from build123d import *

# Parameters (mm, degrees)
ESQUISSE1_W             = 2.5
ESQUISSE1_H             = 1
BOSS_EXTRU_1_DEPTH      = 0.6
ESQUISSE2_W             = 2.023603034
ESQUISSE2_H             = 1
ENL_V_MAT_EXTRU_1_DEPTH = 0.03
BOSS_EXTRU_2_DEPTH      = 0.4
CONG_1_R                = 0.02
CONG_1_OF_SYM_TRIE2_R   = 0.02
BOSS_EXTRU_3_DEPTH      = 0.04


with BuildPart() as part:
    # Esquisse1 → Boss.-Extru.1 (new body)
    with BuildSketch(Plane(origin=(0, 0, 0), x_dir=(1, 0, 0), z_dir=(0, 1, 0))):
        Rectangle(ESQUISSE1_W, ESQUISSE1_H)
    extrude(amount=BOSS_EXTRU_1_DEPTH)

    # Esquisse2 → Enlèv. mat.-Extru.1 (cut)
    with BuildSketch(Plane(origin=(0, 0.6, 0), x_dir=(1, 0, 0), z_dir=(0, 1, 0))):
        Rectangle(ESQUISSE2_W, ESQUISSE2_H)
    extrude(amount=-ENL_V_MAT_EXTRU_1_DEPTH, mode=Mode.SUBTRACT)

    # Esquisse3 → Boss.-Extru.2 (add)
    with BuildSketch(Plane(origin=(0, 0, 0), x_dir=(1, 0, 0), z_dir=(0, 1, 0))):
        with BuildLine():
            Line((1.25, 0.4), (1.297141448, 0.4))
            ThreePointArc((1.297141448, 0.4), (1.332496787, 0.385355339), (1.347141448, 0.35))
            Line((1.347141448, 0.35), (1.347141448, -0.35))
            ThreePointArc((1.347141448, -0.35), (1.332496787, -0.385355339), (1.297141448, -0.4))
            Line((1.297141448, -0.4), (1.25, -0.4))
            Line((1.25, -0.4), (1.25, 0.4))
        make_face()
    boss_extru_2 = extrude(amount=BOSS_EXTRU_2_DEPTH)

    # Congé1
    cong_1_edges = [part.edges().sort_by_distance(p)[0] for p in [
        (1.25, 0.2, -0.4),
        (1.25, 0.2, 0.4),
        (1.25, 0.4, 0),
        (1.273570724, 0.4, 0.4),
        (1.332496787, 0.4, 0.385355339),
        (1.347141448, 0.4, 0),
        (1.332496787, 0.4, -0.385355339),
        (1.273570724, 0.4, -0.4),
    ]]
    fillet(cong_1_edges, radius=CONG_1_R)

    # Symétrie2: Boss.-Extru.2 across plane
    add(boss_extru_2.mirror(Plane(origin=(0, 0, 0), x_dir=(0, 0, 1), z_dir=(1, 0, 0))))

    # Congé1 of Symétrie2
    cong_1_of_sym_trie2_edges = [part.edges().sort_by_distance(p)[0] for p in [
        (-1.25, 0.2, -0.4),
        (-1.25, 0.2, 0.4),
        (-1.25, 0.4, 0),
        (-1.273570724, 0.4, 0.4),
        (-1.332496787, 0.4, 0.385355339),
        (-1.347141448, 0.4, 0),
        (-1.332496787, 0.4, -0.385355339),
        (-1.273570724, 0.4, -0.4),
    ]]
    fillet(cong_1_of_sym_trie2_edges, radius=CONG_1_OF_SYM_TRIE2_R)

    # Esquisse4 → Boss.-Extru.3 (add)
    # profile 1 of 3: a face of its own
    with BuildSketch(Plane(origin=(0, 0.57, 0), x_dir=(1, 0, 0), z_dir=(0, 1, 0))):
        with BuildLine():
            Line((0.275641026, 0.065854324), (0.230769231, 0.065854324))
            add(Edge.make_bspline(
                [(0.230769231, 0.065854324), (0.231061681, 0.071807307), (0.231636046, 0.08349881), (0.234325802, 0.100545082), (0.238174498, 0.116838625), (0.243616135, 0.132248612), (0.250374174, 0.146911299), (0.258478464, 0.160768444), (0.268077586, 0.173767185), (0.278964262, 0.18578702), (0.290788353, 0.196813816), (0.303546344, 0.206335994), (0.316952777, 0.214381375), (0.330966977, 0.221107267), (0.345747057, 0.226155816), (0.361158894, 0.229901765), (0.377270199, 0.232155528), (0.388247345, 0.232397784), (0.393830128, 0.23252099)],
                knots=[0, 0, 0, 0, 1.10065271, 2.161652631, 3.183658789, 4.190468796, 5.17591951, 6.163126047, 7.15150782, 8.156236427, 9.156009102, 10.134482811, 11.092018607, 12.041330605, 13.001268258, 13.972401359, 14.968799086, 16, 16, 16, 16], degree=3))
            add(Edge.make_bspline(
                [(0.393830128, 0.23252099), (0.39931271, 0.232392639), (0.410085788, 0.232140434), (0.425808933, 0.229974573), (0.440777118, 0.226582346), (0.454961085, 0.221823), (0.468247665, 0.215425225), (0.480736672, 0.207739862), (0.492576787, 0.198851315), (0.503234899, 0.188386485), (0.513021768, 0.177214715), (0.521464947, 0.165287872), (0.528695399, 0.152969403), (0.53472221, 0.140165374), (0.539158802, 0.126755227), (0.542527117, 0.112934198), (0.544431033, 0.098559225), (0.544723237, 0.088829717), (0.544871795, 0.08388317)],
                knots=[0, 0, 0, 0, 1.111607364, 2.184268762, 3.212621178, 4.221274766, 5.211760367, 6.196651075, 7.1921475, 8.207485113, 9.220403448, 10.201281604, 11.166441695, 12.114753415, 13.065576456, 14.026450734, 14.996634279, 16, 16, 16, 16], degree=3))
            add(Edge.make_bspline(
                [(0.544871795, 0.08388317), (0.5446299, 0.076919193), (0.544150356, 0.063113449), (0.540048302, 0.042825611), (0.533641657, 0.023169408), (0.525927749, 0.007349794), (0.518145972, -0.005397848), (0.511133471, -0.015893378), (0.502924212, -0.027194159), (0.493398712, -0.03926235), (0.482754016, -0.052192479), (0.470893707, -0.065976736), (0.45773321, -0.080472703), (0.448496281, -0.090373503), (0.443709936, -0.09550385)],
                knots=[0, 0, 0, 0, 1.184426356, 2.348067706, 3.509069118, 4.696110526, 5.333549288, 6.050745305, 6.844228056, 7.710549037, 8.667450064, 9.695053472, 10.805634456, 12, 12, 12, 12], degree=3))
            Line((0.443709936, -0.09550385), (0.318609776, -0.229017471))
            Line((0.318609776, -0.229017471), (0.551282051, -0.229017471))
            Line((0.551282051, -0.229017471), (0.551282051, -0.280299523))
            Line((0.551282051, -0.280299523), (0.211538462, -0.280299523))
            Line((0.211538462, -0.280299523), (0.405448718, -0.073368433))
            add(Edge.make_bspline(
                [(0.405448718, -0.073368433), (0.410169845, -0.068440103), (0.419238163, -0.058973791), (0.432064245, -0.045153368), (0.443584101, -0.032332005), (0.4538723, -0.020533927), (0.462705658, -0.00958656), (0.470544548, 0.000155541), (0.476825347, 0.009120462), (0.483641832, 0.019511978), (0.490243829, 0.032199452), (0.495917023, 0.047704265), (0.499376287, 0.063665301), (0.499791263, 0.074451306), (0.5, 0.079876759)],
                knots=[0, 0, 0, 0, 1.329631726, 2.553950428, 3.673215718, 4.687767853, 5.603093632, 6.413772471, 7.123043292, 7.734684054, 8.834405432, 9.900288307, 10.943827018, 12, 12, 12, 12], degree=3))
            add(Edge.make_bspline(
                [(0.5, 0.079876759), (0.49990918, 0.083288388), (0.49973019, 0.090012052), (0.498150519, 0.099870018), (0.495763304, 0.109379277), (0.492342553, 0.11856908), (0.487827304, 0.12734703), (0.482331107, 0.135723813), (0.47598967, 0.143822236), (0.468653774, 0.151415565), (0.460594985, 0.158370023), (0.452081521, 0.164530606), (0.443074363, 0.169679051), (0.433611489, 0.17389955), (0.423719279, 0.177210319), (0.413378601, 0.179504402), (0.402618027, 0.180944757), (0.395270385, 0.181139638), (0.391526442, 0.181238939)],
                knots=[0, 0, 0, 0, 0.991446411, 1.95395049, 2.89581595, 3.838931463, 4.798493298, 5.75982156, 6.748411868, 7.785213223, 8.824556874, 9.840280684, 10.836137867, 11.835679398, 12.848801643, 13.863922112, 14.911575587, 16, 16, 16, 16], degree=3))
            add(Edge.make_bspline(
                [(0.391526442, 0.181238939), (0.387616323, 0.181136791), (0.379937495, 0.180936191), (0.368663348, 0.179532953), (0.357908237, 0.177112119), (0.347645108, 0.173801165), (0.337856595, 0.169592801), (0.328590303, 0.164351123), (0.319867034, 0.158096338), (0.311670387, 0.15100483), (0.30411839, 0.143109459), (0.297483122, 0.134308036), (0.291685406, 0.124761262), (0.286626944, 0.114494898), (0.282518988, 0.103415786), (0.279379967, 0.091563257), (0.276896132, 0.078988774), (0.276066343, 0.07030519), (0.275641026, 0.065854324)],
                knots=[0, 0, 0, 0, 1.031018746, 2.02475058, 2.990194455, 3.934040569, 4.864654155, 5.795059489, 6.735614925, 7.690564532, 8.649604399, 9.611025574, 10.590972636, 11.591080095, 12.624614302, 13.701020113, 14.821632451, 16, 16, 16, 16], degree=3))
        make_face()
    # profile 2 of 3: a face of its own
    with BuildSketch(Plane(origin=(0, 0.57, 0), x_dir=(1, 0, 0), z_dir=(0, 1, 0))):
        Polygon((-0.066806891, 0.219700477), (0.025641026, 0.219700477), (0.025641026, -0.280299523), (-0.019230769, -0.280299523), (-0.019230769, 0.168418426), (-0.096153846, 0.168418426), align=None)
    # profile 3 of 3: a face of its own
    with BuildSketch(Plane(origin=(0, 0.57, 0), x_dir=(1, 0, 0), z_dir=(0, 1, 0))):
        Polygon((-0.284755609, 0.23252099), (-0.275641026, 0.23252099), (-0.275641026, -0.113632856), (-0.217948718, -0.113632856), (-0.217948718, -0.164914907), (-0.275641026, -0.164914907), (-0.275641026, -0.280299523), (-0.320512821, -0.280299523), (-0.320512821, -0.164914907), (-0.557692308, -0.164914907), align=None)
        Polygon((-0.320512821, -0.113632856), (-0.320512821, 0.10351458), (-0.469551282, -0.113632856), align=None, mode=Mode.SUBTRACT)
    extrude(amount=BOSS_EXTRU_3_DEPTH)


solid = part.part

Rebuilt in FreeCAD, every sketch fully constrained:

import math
import FreeCAD as App
import Part
import Sketcher
Q = App.Units.Quantity


def edges_at(feature, points):
    """Names of the edges that pass closest to the given points."""
    edges = feature.Shape.Edges
    near = lambda p: min(range(len(edges)), key=lambda i: edges[i].distToShape(Part.Vertex(*p))[0])
    return sorted({f"Edge{near(p) + 1}" for p in points})

doc = App.newDocument("Part")
body = doc.addObject("PartDesign::Body", "Body")

sketch1 = body.newObject("Sketcher::SketchObject", "Sketch")
sketch1.AttachmentSupport = (doc.getObject("XZ_Plane"), [""])
sketch1.MapMode = "FlatFace"
sketch1.addGeometry(Part.LineSegment(App.Vector(-1.2, -0.5, 0), App.Vector(-1.2, 0.5, 0)), False)
sketch1.addGeometry(Part.LineSegment(App.Vector(-1.2, 0.5, 0), App.Vector(1.2, 0.5, 0)), False)
sketch1.addGeometry(Part.LineSegment(App.Vector(1.2, 0.5, 0), App.Vector(1.2, -0.5, 0)), False)
sketch1.addGeometry(Part.LineSegment(App.Vector(1.2, -0.5, 0), App.Vector(-1.2, -0.5, 0)), False)
sketch1.addConstraint(Sketcher.Constraint("Coincident", 0, 2, 1, 1))
sketch1.addConstraint(Sketcher.Constraint("Coincident", 1, 2, 2, 1))
sketch1.addConstraint(Sketcher.Constraint("Coincident", 2, 2, 3, 1))
sketch1.addConstraint(Sketcher.Constraint("Coincident", 3, 2, 0, 1))
sketch1.addConstraint(Sketcher.Constraint("Vertical", 0))
sketch1.addConstraint(Sketcher.Constraint("Horizontal", 1))
sketch1.addConstraint(Sketcher.Constraint("Vertical", 2))
sketch1.addConstraint(Sketcher.Constraint("Horizontal", 3))
sketch1.addConstraint(Sketcher.Constraint("Symmetric", 0, 2, 2, 2, -1, 1))
sketch1.addConstraint(Sketcher.Constraint("DistanceY", 0, 1, 0, 2, Q("1 mm")))
sketch1.addConstraint(Sketcher.Constraint("DistanceX", 1, 1, 1, 2, Q("2.5 mm")))
pad1 = body.newObject("PartDesign::Pad", "Pad")
pad1.Profile = sketch1
pad1.Length = 0.6
pad1.Reversed = True

sketch2 = body.newObject("Sketcher::SketchObject", "Sketch001")
sketch2.AttachmentSupport = (doc.getObject("XZ_Plane"), [""])
sketch2.MapMode = "FlatFace"
sketch2.AttachmentOffset = App.Placement(App.Vector(0, 0, -0.6), App.Rotation())
sketch2.addGeometry(Part.LineSegment(App.Vector(-1, -0.5, 0), App.Vector(-1, 0.5, 0)), False)
sketch2.addGeometry(Part.LineSegment(App.Vector(-1, 0.5, 0), App.Vector(1, 0.5, 0)), False)
sketch2.addGeometry(Part.LineSegment(App.Vector(1, 0.5, 0), App.Vector(1, -0.5, 0)), False)
sketch2.addGeometry(Part.LineSegment(App.Vector(1, -0.5, 0), App.Vector(-1, -0.5, 0)), False)
sketch2.addConstraint(Sketcher.Constraint("Coincident", 0, 2, 1, 1))
sketch2.addConstraint(Sketcher.Constraint("Coincident", 1, 2, 2, 1))
sketch2.addConstraint(Sketcher.Constraint("Coincident", 2, 2, 3, 1))
sketch2.addConstraint(Sketcher.Constraint("Coincident", 3, 2, 0, 1))
sketch2.addConstraint(Sketcher.Constraint("Vertical", 0))
sketch2.addConstraint(Sketcher.Constraint("Horizontal", 1))
sketch2.addConstraint(Sketcher.Constraint("Vertical", 2))
sketch2.addConstraint(Sketcher.Constraint("Horizontal", 3))
sketch2.addConstraint(Sketcher.Constraint("Symmetric", 0, 2, 2, 2, -1, 1))
sketch2.addConstraint(Sketcher.Constraint("DistanceY", 0, 1, 0, 2, Q("1 mm")))
sketch2.addConstraint(Sketcher.Constraint("DistanceX", 0, 2, -1, 1, Q("1.011802 mm")))
pocket1 = body.newObject("PartDesign::Pocket", "Pocket")
pocket1.Profile = sketch2
pocket1.Length = 0.03
pocket1.Reversed = True

sketch3 = body.newObject("Sketcher::SketchObject", "Sketch002")
sketch3.AttachmentSupport = (doc.getObject("XZ_Plane"), [""])
sketch3.MapMode = "FlatFace"
sketch3.addGeometry(Part.LineSegment(App.Vector(1.297, -0.4, 0), App.Vector(1.25, -0.4, 0)), False)
sketch3.addGeometry(Part.LineSegment(App.Vector(1.25, -0.4, 0), App.Vector(1.25, 0.4, 0)), False)
sketch3.addGeometry(Part.LineSegment(App.Vector(1.25, 0.4, 0), App.Vector(1.297, 0.4, 0)), False)
sketch3.addGeometry(Part.ArcOfCircle(Part.Circle(App.Vector(1.297, 0.35, 0), App.Vector(0, 0, 1), 0.05), math.radians(0), math.radians(90)), False)
sketch3.addGeometry(Part.LineSegment(App.Vector(1.347, 0.35, 0), App.Vector(1.347, -0.35, 0)), False)
sketch3.addGeometry(Part.ArcOfCircle(Part.Circle(App.Vector(1.297, -0.35, 0), App.Vector(0, 0, 1), 0.05), math.radians(-90), math.radians(0)), False)
sketch3.addConstraint(Sketcher.Constraint("Coincident", 0, 2, 1, 1))
sketch3.addConstraint(Sketcher.Constraint("Coincident", 1, 2, 2, 1))
sketch3.addConstraint(Sketcher.Constraint("Tangent", 2, 2, 3, 2))
sketch3.addConstraint(Sketcher.Constraint("Tangent", 3, 1, 4, 1))
sketch3.addConstraint(Sketcher.Constraint("Tangent", 4, 2, 5, 2))
sketch3.addConstraint(Sketcher.Constraint("Tangent", 5, 1, 0, 1))
sketch3.addConstraint(Sketcher.Constraint("Horizontal", 0))
sketch3.addConstraint(Sketcher.Constraint("Vertical", 1))
sketch3.addConstraint(Sketcher.Constraint("Horizontal", 2))
sketch3.addConstraint(Sketcher.Constraint("Vertical", 4))
sketch3.addConstraint(Sketcher.Constraint("Equal", 3, 5))
sketch3.addConstraint(Sketcher.Constraint("Radius", 3, Q("0.05 mm")))
sketch3.addConstraint(Sketcher.Constraint("DistanceY", 1, 1, 1, 2, Q("0.8 mm")))
sketch3.addConstraint(Sketcher.Constraint("DistanceY", 0, 2, -1, 1, Q("0.4 mm")))
sketch3.addConstraint(Sketcher.Constraint("DistanceX", -1, 1, 0, 2, Q("1.25 mm")))
sketch3.addConstraint(Sketcher.Constraint("DistanceX", 0, 2, 0, 1, Q("0.047141 mm")))
pad2 = body.newObject("PartDesign::Pad", "Pad001")
pad2.Profile = sketch3
pad2.Length = 0.4
pad2.Reversed = True
doc.recompute()

fillet = body.newObject("PartDesign::Fillet", "Fillet")
fillet.Base = (pad2, edges_at(pad2, [
    (1.25, 0.2, -0.4),
    (1.25, 0.2, 0.4),
    (1.25, 0.4, 0),
    (1.274, 0.4, 0.4),
    (1.332, 0.4, 0.385),
    (1.347, 0.4, 0),
    (1.332, 0.4, -0.385),
    (1.274, 0.4, -0.4),
]))
fillet.Radius = 0.02
doc.recompute()

mirrored = body.newObject("PartDesign::Mirrored", "Mirrored")
mirrored.Originals = [pad2]
mirrored.MirrorPlane = (doc.getObject("YZ_Plane"), [""])
body.Tip = mirrored
doc.recompute()

fillet2 = body.newObject("PartDesign::Fillet", "Fillet001")
fillet2.Base = (mirrored, edges_at(mirrored, [
    (-1.25, 0.2, -0.4),
    (-1.25, 0.2, 0.4),
    (-1.25, 0.4, 0),
    (-1.274, 0.4, 0.4),
    (-1.332, 0.4, 0.385),
    (-1.347, 0.4, 0),
    (-1.332, 0.4, -0.385),
    (-1.274, 0.4, -0.4),
]))
fillet2.Radius = 0.02

sketch4 = body.newObject("Sketcher::SketchObject", "Sketch003")
sketch4.AttachmentSupport = (doc.getObject("XZ_Plane"), [""])
sketch4.MapMode = "FlatFace"
sketch4.AttachmentOffset = App.Placement(App.Vector(0, 0, -0.57), App.Rotation())
sketch4.addGeometry(Part.LineSegment(App.Vector(0.230769, -0.065854, 0), App.Vector(0.275641, -0.065854, 0)), False)
sketch4.addGeometry(Part.BSplineCurve([App.Vector(0.391526, -0.181239, 0), App.Vector(0.387616, -0.181137, 0), App.Vector(0.379937, -0.180936, 0), App.Vector(0.368663, -0.179533, 0), App.Vector(0.357908, -0.177112, 0), App.Vector(0.347645, -0.173801, 0), App.Vector(0.337857, -0.169593, 0), App.Vector(0.32859, -0.164351, 0), App.Vector(0.319867, -0.158096, 0), App.Vector(0.31167, -0.151005, 0), App.Vector(0.304118, -0.143109, 0), App.Vector(0.297483, -0.134308, 0), App.Vector(0.291685, -0.124761, 0), App.Vector(0.286627, -0.114495, 0), App.Vector(0.282519, -0.103416, 0), App.Vector(0.27938, -0.091563, 0), App.Vector(0.276896, -0.078989, 0), App.Vector(0.276066, -0.070305, 0), App.Vector(0.275641, -0.065854, 0)], [4, 1, 1, 1, 1, 1, 1, 1, 1, 1, 1, 1, 1, 1, 1, 1, 4], [0, 1.031018746, 2.02475058, 2.990194455, 3.934040569, 4.864654155, 5.795059489, 6.735614925, 7.690564532, 8.649604399, 9.611025574, 10.590972636, 11.591080095, 12.624614302, 13.701020113, 14.821632451, 16], False, 3, [1, 1, 1, 1, 1, 1, 1, 1, 1, 1, 1, 1, 1, 1, 1, 1, 1, 1, 1], False), False)
sketch4.addGeometry(Part.BSplineCurve([App.Vector(0.5, -0.079877, 0), App.Vector(0.499909, -0.083288, 0), App.Vector(0.49973, -0.090012, 0), App.Vector(0.498151, -0.09987, 0), App.Vector(0.495763, -0.109379, 0), App.Vector(0.492343, -0.118569, 0), App.Vector(0.487827, -0.127347, 0), App.Vector(0.482331, -0.135724, 0), App.Vector(0.47599, -0.143822, 0), App.Vector(0.468654, -0.151416, 0), App.Vector(0.460595, -0.15837, 0), App.Vector(0.452082, -0.164531, 0), App.Vector(0.443074, -0.169679, 0), App.Vector(0.433611, -0.1739, 0), App.Vector(0.423719, -0.17721, 0), App.Vector(0.413379, -0.179504, 0), App.Vector(0.402618, -0.180945, 0), App.Vector(0.39527, -0.18114, 0), App.Vector(0.391526, -0.181239, 0)], [4, 1, 1, 1, 1, 1, 1, 1, 1, 1, 1, 1, 1, 1, 1, 1, 4], [0, 0.991446411, 1.95395049, 2.89581595, 3.838931463, 4.798493298, 5.75982156, 6.748411868, 7.785213223, 8.824556874, 9.840280684, 10.836137867, 11.835679398, 12.848801643, 13.863922112, 14.911575587, 16], False, 3, [1, 1, 1, 1, 1, 1, 1, 1, 1, 1, 1, 1, 1, 1, 1, 1, 1, 1, 1], False), False)
sketch4.addGeometry(Part.BSplineCurve([App.Vector(0.405449, 0.073368, 0), App.Vector(0.41017, 0.06844, 0), App.Vector(0.419238, 0.058974, 0), App.Vector(0.432064, 0.045153, 0), App.Vector(0.443584, 0.032332, 0), App.Vector(0.453872, 0.020534, 0), App.Vector(0.462706, 0.009587, 0), App.Vector(0.470545, -0.000156, 0), App.Vector(0.476825, -0.00912, 0), App.Vector(0.483642, -0.019512, 0), App.Vector(0.490244, -0.032199, 0), App.Vector(0.495917, -0.047704, 0), App.Vector(0.499376, -0.063665, 0), App.Vector(0.499791, -0.074451, 0), App.Vector(0.5, -0.079877, 0)], [4, 1, 1, 1, 1, 1, 1, 1, 1, 1, 1, 1, 4], [0, 1.329631726, 2.553950428, 3.673215718, 4.687767853, 5.603093632, 6.413772471, 7.123043292, 7.734684054, 8.834405432, 9.900288307, 10.943827018, 12], False, 3, [1, 1, 1, 1, 1, 1, 1, 1, 1, 1, 1, 1, 1, 1, 1], False), False)
sketch4.addGeometry(Part.LineSegment(App.Vector(0.405449, 0.073368, 0), App.Vector(0.211538, 0.2803, 0)), False)
sketch4.addGeometry(Part.LineSegment(App.Vector(0.211538, 0.2803, 0), App.Vector(0.551282, 0.2803, 0)), False)
sketch4.addGeometry(Part.LineSegment(App.Vector(0.551282, 0.2803, 0), App.Vector(0.551282, 0.229017, 0)), False)
sketch4.addGeometry(Part.LineSegment(App.Vector(0.551282, 0.229017, 0), App.Vector(0.31861, 0.229017, 0)), False)
sketch4.addGeometry(Part.LineSegment(App.Vector(0.31861, 0.229017, 0), App.Vector(0.44371, 0.095504, 0)), False)
sketch4.addGeometry(Part.BSplineCurve([App.Vector(0.544872, -0.083883, 0), App.Vector(0.54463, -0.076919, 0), App.Vector(0.54415, -0.063113, 0), App.Vector(0.540048, -0.042826, 0), App.Vector(0.533642, -0.023169, 0), App.Vector(0.525928, -0.00735, 0), App.Vector(0.518146, 0.005398, 0), App.Vector(0.511133, 0.015893, 0), App.Vector(0.502924, 0.027194, 0), App.Vector(0.493399, 0.039262, 0), App.Vector(0.482754, 0.052192, 0), App.Vector(0.470894, 0.065977, 0), App.Vector(0.457733, 0.080473, 0), App.Vector(0.448496, 0.090374, 0), App.Vector(0.44371, 0.095504, 0)], [4, 1, 1, 1, 1, 1, 1, 1, 1, 1, 1, 1, 4], [0, 1.184426356, 2.348067706, 3.509069118, 4.696110526, 5.333549288, 6.050745305, 6.844228056, 7.710549037, 8.667450064, 9.695053472, 10.805634456, 12], False, 3, [1, 1, 1, 1, 1, 1, 1, 1, 1, 1, 1, 1, 1, 1, 1], False), False)
sketch4.addGeometry(Part.BSplineCurve([App.Vector(0.39383, -0.232521, 0), App.Vector(0.399313, -0.232393, 0), App.Vector(0.410086, -0.23214, 0), App.Vector(0.425809, -0.229975, 0), App.Vector(0.440777, -0.226582, 0), App.Vector(0.454961, -0.221823, 0), App.Vector(0.468248, -0.215425, 0), App.Vector(0.480737, -0.20774, 0), App.Vector(0.492577, -0.198851, 0), App.Vector(0.503235, -0.188386, 0), App.Vector(0.513022, -0.177215, 0), App.Vector(0.521465, -0.165288, 0), App.Vector(0.528695, -0.152969, 0), App.Vector(0.534722, -0.140165, 0), App.Vector(0.539159, -0.126755, 0), App.Vector(0.542527, -0.112934, 0), App.Vector(0.544431, -0.098559, 0), App.Vector(0.544723, -0.08883, 0), App.Vector(0.544872, -0.083883, 0)], [4, 1, 1, 1, 1, 1, 1, 1, 1, 1, 1, 1, 1, 1, 1, 1, 4], [0, 1.111607364, 2.184268762, 3.212621178, 4.221274766, 5.211760367, 6.196651075, 7.1921475, 8.207485113, 9.220403448, 10.201281604, 11.166441695, 12.114753415, 13.065576456, 14.026450734, 14.996634279, 16], False, 3, [1, 1, 1, 1, 1, 1, 1, 1, 1, 1, 1, 1, 1, 1, 1, 1, 1, 1, 1], False), False)
sketch4.addGeometry(Part.BSplineCurve([App.Vector(0.230769, -0.065854, 0), App.Vector(0.231062, -0.071807, 0), App.Vector(0.231636, -0.083499, 0), App.Vector(0.234326, -0.100545, 0), App.Vector(0.238174, -0.116839, 0), App.Vector(0.243616, -0.132249, 0), App.Vector(0.250374, -0.146911, 0), App.Vector(0.258478, -0.160768, 0), App.Vector(0.268078, -0.173767, 0), App.Vector(0.278964, -0.185787, 0), App.Vector(0.290788, -0.196814, 0), App.Vector(0.303546, -0.206336, 0), App.Vector(0.316953, -0.214381, 0), App.Vector(0.330967, -0.221107, 0), App.Vector(0.345747, -0.226156, 0), App.Vector(0.361159, -0.229902, 0), App.Vector(0.37727, -0.232156, 0), App.Vector(0.388247, -0.232398, 0), App.Vector(0.39383, -0.232521, 0)], [4, 1, 1, 1, 1, 1, 1, 1, 1, 1, 1, 1, 1, 1, 1, 1, 4], [0, 1.10065271, 2.161652631, 3.183658789, 4.190468796, 5.17591951, 6.163126047, 7.15150782, 8.156236427, 9.156009102, 10.134482811, 11.092018607, 12.041330605, 13.001268258, 13.972401359, 14.968799086, 16], False, 3, [1, 1, 1, 1, 1, 1, 1, 1, 1, 1, 1, 1, 1, 1, 1, 1, 1, 1, 1], False), False)
sketch4.addGeometry(Part.LineSegment(App.Vector(0.025641, -0.2197, 0), App.Vector(-0.066807, -0.2197, 0)), False)
sketch4.addGeometry(Part.LineSegment(App.Vector(-0.066807, -0.2197, 0), App.Vector(-0.096154, -0.168418, 0)), False)
sketch4.addGeometry(Part.LineSegment(App.Vector(-0.096154, -0.168418, 0), App.Vector(-0.019231, -0.168418, 0)), False)
sketch4.addGeometry(Part.LineSegment(App.Vector(-0.019231, -0.168418, 0), App.Vector(-0.019231, 0.2803, 0)), False)
sketch4.addGeometry(Part.LineSegment(App.Vector(-0.019231, 0.2803, 0), App.Vector(0.025641, 0.2803, 0)), False)
sketch4.addGeometry(Part.LineSegment(App.Vector(0.025641, 0.2803, 0), App.Vector(0.025641, -0.2197, 0)), False)
sketch4.addGeometry(Part.LineSegment(App.Vector(-0.275641, -0.232521, 0), App.Vector(-0.284756, -0.232521, 0)), False)
sketch4.addGeometry(Part.LineSegment(App.Vector(-0.284756, -0.232521, 0), App.Vector(-0.557692, 0.164915, 0)), False)
sketch4.addGeometry(Part.LineSegment(App.Vector(-0.557692, 0.164915, 0), App.Vector(-0.320513, 0.164915, 0)), False)
sketch4.addGeometry(Part.LineSegment(App.Vector(-0.320513, 0.164915, 0), App.Vector(-0.320513, 0.2803, 0)), False)
sketch4.addGeometry(Part.LineSegment(App.Vector(-0.320513, 0.2803, 0), App.Vector(-0.275641, 0.2803, 0)), False)
sketch4.addGeometry(Part.LineSegment(App.Vector(-0.275641, 0.2803, 0), App.Vector(-0.275641, 0.164915, 0)), False)
sketch4.addGeometry(Part.LineSegment(App.Vector(-0.275641, 0.164915, 0), App.Vector(-0.217949, 0.164915, 0)), False)
sketch4.addGeometry(Part.LineSegment(App.Vector(-0.217949, 0.164915, 0), App.Vector(-0.217949, 0.113633, 0)), False)
sketch4.addGeometry(Part.LineSegment(App.Vector(-0.217949, 0.113633, 0), App.Vector(-0.275641, 0.113633, 0)), False)
sketch4.addGeometry(Part.LineSegment(App.Vector(-0.275641, 0.113633, 0), App.Vector(-0.275641, -0.232521, 0)), False)
sketch4.addGeometry(Part.LineSegment(App.Vector(-0.320513, 0.113633, 0), App.Vector(-0.469551, 0.113633, 0)), False)
sketch4.addGeometry(Part.LineSegment(App.Vector(-0.469551, 0.113633, 0), App.Vector(-0.320513, -0.103515, 0)), False)
sketch4.addGeometry(Part.LineSegment(App.Vector(-0.320513, -0.103515, 0), App.Vector(-0.320513, 0.113633, 0)), False)
sketch4.addConstraint(Sketcher.Constraint("Block", 1))
sketch4.addConstraint(Sketcher.Constraint("Block", 2))
sketch4.addConstraint(Sketcher.Constraint("Block", 3))
sketch4.addConstraint(Sketcher.Constraint("Block", 9))
sketch4.addConstraint(Sketcher.Constraint("Block", 10))
sketch4.addConstraint(Sketcher.Constraint("Block", 11))
sketch4.addConstraint(Sketcher.Constraint("Coincident", 0, 2, 1, 2))
sketch4.addConstraint(Sketcher.Constraint("Coincident", 3, 1, 4, 1))
sketch4.addConstraint(Sketcher.Constraint("Coincident", 4, 2, 5, 1))
sketch4.addConstraint(Sketcher.Constraint("Coincident", 5, 2, 6, 1))
sketch4.addConstraint(Sketcher.Constraint("Coincident", 6, 2, 7, 1))
sketch4.addConstraint(Sketcher.Constraint("Coincident", 7, 2, 8, 1))
sketch4.addConstraint(Sketcher.Constraint("Coincident", 8, 2, 9, 2))
sketch4.addConstraint(Sketcher.Constraint("Coincident", 11, 1, 0, 1))
sketch4.addConstraint(Sketcher.Constraint("Coincident", 12, 2, 13, 1))
sketch4.addConstraint(Sketcher.Constraint("Coincident", 13, 2, 14, 1))
sketch4.addConstraint(Sketcher.Constraint("Coincident", 14, 2, 15, 1))
sketch4.addConstraint(Sketcher.Constraint("Coincident", 15, 2, 16, 1))
sketch4.addConstraint(Sketcher.Constraint("Coincident", 16, 2, 17, 1))
sketch4.addConstraint(Sketcher.Constraint("Coincident", 17, 2, 12, 1))
sketch4.addConstraint(Sketcher.Constraint("Coincident", 18, 2, 19, 1))
sketch4.addConstraint(Sketcher.Constraint("Coincident", 19, 2, 20, 1))
sketch4.addConstraint(Sketcher.Constraint("Coincident", 20, 2, 21, 1))
sketch4.addConstraint(Sketcher.Constraint("Coincident", 21, 2, 22, 1))
sketch4.addConstraint(Sketcher.Constraint("Coincident", 22, 2, 23, 1))
sketch4.addConstraint(Sketcher.Constraint("Coincident", 23, 2, 24, 1))
sketch4.addConstraint(Sketcher.Constraint("Coincident", 24, 2, 25, 1))
sketch4.addConstraint(Sketcher.Constraint("Coincident", 25, 2, 26, 1))
sketch4.addConstraint(Sketcher.Constraint("Coincident", 26, 2, 27, 1))
sketch4.addConstraint(Sketcher.Constraint("Coincident", 27, 2, 18, 1))
sketch4.addConstraint(Sketcher.Constraint("Coincident", 28, 2, 29, 1))
sketch4.addConstraint(Sketcher.Constraint("Coincident", 29, 2, 30, 1))
sketch4.addConstraint(Sketcher.Constraint("Coincident", 30, 2, 28, 1))
sketch4.addConstraint(Sketcher.Constraint("Horizontal", 5))
sketch4.addConstraint(Sketcher.Constraint("Vertical", 6))
sketch4.addConstraint(Sketcher.Constraint("Horizontal", 7))
sketch4.addConstraint(Sketcher.Constraint("Horizontal", 12))
sketch4.addConstraint(Sketcher.Constraint("Horizontal", 14))
sketch4.addConstraint(Sketcher.Constraint("Vertical", 15))
sketch4.addConstraint(Sketcher.Constraint("Horizontal", 16))
sketch4.addConstraint(Sketcher.Constraint("Vertical", 17))
sketch4.addConstraint(Sketcher.Constraint("Horizontal", 18))
sketch4.addConstraint(Sketcher.Constraint("Horizontal", 20))
sketch4.addConstraint(Sketcher.Constraint("Vertical", 21))
sketch4.addConstraint(Sketcher.Constraint("Horizontal", 22))
sketch4.addConstraint(Sketcher.Constraint("Vertical", 23))
sketch4.addConstraint(Sketcher.Constraint("Horizontal", 24))
sketch4.addConstraint(Sketcher.Constraint("Vertical", 25))
sketch4.addConstraint(Sketcher.Constraint("Horizontal", 26))
sketch4.addConstraint(Sketcher.Constraint("Vertical", 27))
sketch4.addConstraint(Sketcher.Constraint("Horizontal", 28))
sketch4.addConstraint(Sketcher.Constraint("Vertical", 30))
sketch4.addConstraint(Sketcher.Constraint("Horizontal", 5, 2, 15, 2))
sketch4.addConstraint(Sketcher.Constraint("Horizontal", 16, 2, 21, 2))
sketch4.addConstraint(Sketcher.Constraint("Horizontal", 20, 2, 23, 2))
sketch4.addConstraint(Sketcher.Constraint("Horizontal", 26, 2, 28, 2))
sketch4.addConstraint(Sketcher.Constraint("Vertical", 23, 2, 26, 2))
sketch4.addConstraint(Sketcher.Constraint("Vertical", 21, 2, 29, 2))
sketch4.addConstraint(Sketcher.Constraint("Equal", 0, 16))
sketch4.addConstraint(Sketcher.Constraint("Equal", 16, 22))
sketch4.addConstraint(Sketcher.Constraint("Equal", 6, 25))
sketch4.addConstraint(Sketcher.Constraint("DistanceY", 17, 2, 17, 1, Q("0.5 mm")))
sketch4.addConstraint(Sketcher.Constraint("DistanceX", 16, 2, 0, 2, Q("0.25 mm")))
sketch4.addConstraint(Sketcher.Constraint("DistanceX", 20, 1, 20, 2, Q("0.237179 mm")))
sketch4.addConstraint(Sketcher.Constraint("DistanceX", 28, 2, 28, 1, Q("0.149038 mm")))
sketch4.addConstraint(Sketcher.Constraint("DistanceY", -1, 1, 4, 2, Q("0.2803 mm")))
sketch4.addConstraint(Sketcher.Constraint("DistanceX", 7, 2, 8, 2, Q("0.1251 mm")))
sketch4.addConstraint(Sketcher.Constraint("DistanceX", 18, 2, 13, 2, Q("0.188602 mm")))
sketch4.addConstraint(Sketcher.Constraint("Distance", 19, Q("0.48213 mm")))
sketch4.addConstraint(Sketcher.Constraint("DistanceX", 5, 1, 5, 2, Q("0.339744 mm")))
sketch4.addConstraint(Sketcher.Constraint("DistanceX", 7, 2, 7, 1, Q("0.232672 mm")))
sketch4.addConstraint(Sketcher.Constraint("DistanceX", 12, 2, 12, 1, Q("0.092448 mm")))
sketch4.addConstraint(Sketcher.Constraint("DistanceX", 14, 1, 14, 2, Q("0.076923 mm")))
sketch4.addConstraint(Sketcher.Constraint("DistanceX", 18, 2, 18, 1, Q("0.009115 mm")))
sketch4.addConstraint(Sketcher.Constraint("DistanceX", 24, 1, 24, 2, Q("0.057692 mm")))
sketch4.addConstraint(Sketcher.Constraint("DistanceY", 6, 2, 6, 1, Q("0.051282 mm")))
sketch4.addConstraint(Sketcher.Constraint("DistanceY", 15, 1, 15, 2, Q("0.448718 mm")))
sketch4.addConstraint(Sketcher.Constraint("DistanceY", 21, 1, 21, 2, Q("0.115385 mm")))
sketch4.addConstraint(Sketcher.Constraint("DistanceY", 30, 1, 30, 2, Q("0.217147 mm")))
pad3 = body.newObject("PartDesign::Pad", "Pad002")
pad3.Profile = sketch4
pad3.Length = 0.04
pad3.Reversed = True

doc.recompute()
